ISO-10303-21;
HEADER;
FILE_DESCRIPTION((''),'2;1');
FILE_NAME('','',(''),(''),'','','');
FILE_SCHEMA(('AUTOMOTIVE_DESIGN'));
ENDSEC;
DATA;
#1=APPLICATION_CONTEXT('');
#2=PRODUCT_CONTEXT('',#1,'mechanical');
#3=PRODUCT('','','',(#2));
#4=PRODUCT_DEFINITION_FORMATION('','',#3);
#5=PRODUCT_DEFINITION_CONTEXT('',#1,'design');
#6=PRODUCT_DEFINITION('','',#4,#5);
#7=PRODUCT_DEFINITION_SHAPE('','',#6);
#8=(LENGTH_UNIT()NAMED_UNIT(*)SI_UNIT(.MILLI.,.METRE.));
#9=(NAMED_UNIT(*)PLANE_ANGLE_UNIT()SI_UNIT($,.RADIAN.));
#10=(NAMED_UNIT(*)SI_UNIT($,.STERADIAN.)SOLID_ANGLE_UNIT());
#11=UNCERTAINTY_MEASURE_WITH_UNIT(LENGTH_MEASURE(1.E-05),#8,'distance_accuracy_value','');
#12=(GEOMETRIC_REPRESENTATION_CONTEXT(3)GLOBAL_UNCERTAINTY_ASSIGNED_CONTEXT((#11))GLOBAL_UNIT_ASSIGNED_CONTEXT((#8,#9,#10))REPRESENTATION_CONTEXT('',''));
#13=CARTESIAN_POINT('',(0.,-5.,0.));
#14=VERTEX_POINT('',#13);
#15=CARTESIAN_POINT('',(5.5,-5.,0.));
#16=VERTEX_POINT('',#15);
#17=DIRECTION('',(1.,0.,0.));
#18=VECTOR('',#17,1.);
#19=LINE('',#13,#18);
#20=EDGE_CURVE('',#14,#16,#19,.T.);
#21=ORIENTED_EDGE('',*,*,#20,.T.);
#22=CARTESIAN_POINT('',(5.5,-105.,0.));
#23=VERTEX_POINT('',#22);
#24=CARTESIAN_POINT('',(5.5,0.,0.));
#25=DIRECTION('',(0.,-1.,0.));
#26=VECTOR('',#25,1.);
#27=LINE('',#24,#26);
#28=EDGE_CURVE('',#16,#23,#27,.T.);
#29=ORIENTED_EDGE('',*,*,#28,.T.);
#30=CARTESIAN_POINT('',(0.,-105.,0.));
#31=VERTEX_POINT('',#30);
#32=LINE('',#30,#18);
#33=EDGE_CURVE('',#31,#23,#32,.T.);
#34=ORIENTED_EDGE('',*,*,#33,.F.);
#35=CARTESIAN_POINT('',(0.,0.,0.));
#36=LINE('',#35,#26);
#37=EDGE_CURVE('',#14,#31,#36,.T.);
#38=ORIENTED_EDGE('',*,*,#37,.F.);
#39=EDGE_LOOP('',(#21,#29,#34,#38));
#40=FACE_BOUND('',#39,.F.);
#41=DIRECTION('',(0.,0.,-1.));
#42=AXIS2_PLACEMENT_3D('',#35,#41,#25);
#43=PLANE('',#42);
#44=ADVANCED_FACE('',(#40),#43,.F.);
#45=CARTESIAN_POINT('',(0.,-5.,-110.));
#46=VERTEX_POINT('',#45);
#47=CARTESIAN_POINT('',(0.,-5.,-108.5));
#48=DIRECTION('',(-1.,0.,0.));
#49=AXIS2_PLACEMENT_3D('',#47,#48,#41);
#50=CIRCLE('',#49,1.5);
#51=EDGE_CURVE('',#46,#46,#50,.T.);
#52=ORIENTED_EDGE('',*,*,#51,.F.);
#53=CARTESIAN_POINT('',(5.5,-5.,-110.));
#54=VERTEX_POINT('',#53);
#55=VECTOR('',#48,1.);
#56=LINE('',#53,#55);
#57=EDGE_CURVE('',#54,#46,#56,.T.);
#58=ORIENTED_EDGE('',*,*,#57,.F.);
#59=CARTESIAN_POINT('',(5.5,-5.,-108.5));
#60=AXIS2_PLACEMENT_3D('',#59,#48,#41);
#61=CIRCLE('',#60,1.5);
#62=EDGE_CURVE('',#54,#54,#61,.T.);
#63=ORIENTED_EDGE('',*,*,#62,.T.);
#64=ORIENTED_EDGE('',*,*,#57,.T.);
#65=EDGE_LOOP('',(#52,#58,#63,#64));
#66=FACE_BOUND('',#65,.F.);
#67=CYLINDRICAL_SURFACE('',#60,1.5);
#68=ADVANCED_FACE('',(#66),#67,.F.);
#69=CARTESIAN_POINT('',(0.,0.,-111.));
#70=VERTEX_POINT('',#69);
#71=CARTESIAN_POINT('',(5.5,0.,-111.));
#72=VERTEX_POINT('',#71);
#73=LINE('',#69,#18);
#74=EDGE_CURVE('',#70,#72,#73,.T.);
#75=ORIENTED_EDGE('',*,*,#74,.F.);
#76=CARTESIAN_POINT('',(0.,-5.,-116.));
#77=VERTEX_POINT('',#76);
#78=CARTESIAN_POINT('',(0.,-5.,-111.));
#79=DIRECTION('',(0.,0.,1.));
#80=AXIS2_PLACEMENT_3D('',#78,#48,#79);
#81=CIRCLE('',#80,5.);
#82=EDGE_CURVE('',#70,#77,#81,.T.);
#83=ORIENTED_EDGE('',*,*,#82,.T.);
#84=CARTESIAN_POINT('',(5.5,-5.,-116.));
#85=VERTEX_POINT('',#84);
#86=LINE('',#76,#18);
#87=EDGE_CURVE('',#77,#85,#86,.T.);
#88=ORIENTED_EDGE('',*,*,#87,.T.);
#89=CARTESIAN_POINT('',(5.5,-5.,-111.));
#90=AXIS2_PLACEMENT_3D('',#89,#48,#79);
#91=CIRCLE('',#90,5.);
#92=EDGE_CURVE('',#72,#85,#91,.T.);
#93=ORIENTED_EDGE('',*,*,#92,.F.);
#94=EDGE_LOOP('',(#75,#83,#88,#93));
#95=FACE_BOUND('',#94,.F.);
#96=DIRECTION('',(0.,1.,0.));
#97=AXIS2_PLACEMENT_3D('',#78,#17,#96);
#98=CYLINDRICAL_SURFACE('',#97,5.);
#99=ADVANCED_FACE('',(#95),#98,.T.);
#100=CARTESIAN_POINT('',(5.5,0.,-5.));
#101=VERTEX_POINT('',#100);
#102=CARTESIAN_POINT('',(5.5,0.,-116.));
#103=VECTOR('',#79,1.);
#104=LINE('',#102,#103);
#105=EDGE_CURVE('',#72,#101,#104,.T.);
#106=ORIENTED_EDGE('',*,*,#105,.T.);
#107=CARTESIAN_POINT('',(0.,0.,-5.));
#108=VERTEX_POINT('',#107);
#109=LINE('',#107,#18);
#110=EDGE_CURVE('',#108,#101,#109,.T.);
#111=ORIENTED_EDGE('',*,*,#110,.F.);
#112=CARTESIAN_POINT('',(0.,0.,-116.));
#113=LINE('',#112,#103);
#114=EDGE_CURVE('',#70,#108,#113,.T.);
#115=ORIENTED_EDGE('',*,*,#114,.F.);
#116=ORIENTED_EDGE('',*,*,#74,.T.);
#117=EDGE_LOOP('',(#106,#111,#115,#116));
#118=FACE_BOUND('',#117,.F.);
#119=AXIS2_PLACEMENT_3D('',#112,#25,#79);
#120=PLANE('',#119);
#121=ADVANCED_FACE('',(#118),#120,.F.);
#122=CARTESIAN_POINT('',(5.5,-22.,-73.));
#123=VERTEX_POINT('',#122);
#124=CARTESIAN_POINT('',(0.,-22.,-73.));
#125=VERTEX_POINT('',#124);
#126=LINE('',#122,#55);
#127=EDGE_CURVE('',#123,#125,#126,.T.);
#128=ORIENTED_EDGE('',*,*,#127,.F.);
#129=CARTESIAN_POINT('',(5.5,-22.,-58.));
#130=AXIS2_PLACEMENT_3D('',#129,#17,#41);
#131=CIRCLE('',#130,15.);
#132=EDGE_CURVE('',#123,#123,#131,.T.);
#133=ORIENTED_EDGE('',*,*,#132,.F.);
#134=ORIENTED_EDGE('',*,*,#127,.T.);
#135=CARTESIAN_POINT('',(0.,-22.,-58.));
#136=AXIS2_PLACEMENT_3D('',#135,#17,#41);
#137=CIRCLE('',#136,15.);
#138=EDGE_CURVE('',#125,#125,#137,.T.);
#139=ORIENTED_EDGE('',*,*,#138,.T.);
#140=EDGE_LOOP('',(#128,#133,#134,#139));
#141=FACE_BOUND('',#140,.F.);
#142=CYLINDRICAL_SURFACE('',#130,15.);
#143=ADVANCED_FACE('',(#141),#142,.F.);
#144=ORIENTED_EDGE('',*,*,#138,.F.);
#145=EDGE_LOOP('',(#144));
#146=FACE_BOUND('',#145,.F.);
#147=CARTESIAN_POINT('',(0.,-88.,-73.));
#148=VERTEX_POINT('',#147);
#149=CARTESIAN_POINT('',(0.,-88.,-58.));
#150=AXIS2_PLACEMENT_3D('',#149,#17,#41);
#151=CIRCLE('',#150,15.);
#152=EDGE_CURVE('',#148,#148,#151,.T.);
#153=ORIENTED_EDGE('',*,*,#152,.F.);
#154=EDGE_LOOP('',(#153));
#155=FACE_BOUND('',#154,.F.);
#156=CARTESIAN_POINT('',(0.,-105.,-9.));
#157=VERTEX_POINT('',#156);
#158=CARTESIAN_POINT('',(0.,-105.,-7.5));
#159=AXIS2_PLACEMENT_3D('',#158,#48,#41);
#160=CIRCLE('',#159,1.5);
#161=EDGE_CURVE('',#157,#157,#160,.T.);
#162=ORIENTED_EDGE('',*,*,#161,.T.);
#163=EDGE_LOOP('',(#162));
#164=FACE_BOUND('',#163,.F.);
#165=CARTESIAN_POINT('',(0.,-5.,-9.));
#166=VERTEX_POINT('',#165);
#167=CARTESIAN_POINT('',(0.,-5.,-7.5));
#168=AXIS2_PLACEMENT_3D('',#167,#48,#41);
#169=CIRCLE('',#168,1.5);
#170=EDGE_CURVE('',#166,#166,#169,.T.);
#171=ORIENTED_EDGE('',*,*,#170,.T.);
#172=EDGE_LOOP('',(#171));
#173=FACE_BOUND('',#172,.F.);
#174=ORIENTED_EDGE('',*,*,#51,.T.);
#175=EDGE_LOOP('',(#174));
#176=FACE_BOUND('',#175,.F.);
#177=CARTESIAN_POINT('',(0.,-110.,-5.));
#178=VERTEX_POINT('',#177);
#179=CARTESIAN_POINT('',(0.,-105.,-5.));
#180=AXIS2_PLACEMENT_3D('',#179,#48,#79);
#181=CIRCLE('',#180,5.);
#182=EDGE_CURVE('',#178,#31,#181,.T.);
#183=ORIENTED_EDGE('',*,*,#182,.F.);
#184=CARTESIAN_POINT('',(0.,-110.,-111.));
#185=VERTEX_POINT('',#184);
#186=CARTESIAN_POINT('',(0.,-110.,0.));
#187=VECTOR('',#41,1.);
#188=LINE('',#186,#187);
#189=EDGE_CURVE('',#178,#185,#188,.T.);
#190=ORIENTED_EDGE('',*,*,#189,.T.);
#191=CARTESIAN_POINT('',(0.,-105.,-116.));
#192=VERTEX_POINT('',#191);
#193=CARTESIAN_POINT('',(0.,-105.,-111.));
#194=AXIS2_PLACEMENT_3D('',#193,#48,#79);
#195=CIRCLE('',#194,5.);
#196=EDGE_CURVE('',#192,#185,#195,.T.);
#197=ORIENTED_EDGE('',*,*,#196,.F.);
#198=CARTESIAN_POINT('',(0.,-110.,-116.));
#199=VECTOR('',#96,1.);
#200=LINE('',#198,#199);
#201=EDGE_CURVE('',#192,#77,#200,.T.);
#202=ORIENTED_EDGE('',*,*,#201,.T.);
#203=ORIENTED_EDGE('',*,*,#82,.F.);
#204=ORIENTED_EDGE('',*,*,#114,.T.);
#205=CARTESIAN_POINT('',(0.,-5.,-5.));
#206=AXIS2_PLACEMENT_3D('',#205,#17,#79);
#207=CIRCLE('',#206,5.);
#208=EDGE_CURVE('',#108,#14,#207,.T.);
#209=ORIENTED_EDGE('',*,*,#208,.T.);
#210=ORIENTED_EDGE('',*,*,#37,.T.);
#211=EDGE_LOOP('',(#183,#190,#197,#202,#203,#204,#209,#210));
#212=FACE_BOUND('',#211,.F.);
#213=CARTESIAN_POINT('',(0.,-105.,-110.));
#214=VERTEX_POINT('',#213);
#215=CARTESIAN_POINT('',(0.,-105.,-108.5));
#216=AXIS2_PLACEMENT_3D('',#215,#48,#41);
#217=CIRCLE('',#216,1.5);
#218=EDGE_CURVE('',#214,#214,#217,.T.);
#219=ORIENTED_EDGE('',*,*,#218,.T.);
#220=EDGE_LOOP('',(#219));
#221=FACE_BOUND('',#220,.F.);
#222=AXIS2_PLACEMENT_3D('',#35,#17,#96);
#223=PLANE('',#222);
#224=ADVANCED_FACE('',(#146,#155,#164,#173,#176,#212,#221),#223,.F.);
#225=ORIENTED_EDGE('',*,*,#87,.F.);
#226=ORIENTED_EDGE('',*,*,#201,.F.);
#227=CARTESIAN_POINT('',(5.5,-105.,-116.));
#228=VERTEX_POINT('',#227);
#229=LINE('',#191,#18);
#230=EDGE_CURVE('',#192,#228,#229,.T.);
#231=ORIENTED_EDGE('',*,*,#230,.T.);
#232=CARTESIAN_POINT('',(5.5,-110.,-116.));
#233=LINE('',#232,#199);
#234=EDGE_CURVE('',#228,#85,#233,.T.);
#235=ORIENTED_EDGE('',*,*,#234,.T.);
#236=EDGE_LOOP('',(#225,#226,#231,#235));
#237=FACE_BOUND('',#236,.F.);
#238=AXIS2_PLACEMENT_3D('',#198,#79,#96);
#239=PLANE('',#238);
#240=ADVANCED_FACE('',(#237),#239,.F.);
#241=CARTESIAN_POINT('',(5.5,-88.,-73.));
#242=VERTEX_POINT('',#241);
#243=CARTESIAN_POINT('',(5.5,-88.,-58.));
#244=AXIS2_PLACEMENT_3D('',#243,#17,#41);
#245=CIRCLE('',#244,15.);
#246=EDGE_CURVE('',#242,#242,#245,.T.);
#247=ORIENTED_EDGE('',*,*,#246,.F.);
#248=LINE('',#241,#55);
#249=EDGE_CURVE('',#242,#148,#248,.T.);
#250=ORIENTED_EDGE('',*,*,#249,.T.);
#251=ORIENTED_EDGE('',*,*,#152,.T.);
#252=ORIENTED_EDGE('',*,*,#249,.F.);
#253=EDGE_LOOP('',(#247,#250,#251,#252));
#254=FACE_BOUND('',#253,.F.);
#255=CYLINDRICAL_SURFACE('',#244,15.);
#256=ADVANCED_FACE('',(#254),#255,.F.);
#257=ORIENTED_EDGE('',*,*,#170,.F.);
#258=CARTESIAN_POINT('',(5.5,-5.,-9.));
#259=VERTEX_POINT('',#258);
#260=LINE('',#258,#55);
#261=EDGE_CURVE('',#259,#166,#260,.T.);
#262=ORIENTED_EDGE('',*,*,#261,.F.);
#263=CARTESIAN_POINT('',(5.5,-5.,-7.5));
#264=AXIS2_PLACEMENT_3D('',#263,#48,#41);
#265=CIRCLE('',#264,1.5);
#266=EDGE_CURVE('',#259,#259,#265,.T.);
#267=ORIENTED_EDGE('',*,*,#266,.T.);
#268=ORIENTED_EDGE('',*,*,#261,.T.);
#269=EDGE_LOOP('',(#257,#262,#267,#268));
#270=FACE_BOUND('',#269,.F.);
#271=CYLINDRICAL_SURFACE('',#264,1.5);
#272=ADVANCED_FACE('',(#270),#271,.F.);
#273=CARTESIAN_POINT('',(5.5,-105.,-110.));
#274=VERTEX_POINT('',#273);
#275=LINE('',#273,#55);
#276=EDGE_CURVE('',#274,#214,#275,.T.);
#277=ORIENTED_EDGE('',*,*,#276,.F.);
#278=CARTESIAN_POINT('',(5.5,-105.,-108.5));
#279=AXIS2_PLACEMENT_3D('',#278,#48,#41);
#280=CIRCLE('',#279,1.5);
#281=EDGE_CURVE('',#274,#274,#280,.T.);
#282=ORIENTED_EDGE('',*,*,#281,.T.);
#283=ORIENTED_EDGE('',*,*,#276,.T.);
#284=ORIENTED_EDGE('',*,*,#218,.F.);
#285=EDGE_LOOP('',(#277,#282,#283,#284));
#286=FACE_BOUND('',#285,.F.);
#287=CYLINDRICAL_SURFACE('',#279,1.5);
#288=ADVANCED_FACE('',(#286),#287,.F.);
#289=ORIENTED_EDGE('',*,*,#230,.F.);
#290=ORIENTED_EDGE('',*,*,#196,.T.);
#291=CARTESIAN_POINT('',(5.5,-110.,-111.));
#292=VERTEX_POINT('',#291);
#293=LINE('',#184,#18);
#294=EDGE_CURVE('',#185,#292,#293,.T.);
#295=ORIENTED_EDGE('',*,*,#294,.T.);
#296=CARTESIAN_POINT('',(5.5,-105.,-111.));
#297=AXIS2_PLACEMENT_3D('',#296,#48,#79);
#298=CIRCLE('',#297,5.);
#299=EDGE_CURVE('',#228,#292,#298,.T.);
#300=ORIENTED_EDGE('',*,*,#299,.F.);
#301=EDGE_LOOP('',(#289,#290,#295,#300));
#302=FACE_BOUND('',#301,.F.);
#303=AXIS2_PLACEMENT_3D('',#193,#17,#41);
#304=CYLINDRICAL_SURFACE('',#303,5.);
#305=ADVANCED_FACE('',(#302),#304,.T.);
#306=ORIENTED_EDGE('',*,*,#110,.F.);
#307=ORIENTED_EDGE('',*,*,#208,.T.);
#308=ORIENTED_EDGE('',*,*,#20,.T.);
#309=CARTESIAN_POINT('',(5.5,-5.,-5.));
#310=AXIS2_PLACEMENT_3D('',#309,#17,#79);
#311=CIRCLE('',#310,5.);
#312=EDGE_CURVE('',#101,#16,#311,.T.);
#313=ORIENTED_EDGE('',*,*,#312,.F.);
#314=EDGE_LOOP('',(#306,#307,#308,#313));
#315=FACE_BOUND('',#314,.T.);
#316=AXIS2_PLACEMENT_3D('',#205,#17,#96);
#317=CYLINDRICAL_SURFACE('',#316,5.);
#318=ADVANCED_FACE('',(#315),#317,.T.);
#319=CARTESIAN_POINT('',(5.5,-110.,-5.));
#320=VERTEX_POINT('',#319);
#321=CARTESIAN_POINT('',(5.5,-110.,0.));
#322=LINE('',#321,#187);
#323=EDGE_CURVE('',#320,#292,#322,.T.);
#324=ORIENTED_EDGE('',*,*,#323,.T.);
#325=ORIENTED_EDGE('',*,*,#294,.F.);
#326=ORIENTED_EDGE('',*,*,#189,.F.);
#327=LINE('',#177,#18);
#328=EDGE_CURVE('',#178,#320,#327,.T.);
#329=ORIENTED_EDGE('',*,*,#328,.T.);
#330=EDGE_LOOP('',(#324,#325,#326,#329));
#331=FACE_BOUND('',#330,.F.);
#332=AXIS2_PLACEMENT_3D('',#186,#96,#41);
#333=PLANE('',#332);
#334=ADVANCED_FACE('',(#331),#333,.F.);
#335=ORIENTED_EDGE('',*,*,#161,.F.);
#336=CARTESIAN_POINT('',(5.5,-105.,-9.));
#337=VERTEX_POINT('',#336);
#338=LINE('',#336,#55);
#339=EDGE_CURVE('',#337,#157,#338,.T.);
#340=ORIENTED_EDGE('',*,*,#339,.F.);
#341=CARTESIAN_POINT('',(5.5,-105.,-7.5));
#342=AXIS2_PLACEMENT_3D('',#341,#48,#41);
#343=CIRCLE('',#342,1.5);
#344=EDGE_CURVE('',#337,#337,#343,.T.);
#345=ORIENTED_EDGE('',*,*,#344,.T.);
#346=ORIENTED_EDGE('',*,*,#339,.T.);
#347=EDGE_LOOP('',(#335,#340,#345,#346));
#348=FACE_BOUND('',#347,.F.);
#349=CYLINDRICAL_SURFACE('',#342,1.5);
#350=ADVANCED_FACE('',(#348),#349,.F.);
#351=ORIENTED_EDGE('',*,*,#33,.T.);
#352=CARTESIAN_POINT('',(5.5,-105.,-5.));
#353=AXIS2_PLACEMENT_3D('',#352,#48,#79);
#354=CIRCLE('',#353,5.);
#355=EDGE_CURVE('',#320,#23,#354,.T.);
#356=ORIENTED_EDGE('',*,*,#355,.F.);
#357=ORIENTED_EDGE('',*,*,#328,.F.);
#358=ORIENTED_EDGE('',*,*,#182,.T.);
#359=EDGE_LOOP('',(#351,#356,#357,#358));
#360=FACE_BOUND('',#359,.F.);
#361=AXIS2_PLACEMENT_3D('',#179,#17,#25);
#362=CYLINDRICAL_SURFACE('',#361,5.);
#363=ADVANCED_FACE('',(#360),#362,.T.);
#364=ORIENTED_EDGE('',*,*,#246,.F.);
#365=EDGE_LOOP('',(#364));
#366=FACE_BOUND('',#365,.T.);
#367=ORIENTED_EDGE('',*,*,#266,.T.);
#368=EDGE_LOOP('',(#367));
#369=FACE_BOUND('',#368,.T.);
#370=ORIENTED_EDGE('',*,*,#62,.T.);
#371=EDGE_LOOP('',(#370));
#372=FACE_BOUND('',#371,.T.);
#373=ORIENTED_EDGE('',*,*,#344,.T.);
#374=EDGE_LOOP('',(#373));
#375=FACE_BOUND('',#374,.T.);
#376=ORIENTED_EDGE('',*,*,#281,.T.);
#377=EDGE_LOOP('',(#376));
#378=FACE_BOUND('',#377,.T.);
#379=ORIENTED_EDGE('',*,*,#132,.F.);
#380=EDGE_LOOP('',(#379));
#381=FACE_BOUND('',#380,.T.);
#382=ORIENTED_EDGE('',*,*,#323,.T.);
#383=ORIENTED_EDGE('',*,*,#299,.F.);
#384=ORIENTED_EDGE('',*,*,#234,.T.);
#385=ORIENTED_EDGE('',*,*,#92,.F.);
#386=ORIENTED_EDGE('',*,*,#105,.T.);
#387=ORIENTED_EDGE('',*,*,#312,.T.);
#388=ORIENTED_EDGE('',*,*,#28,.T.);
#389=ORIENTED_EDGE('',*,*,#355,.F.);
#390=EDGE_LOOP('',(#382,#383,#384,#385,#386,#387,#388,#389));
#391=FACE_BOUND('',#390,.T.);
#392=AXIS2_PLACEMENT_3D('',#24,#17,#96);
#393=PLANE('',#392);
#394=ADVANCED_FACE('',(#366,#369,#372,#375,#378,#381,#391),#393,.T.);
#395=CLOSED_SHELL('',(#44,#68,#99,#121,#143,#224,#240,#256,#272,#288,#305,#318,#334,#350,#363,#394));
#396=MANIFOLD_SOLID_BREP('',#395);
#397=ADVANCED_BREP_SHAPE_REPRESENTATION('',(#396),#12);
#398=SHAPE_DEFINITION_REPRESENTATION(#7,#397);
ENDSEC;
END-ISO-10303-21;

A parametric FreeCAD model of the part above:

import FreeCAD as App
import Part
import Sketcher


def edges_at(feature, points):
    """Names of the edges that pass closest to the given points."""
    edges = feature.Shape.Edges
    near = lambda p: min(range(len(edges)), key=lambda i: edges[i].distToShape(Part.Vertex(*p))[0])
    return sorted({f"Edge{near(p) + 1}" for p in points})


def add_polygon(sketch, points):
    """Adds a closed chain of lines whose ends are joined by coincident constraints."""
    first, n = sketch.GeometryCount, len(points)
    for a, b in zip(points, points[1:] + points[:1]):
        sketch.addGeometry(Part.LineSegment(App.Vector(*a, 0), App.Vector(*b, 0)), False)
    for i in range(n):
        sketch.addConstraint(Sketcher.Constraint("Coincident", first + i, 2, first + (i + 1) % n, 1))

doc = App.newDocument("Part")
body = doc.addObject("PartDesign::Body", "Body")

# Sketch on YZ plane
sketch1 = body.newObject("Sketcher::SketchObject", "Sketch")
sketch1.AttachmentSupport = (doc.getObject("YZ_Plane"), [""])
sketch1.MapMode = "FlatFace"
add_polygon(sketch1, [(0, -116), (0, 0), (-110, 0), (-110, -116)])  # lines 0-3
sketch1.addConstraint([
    Sketcher.Constraint("Vertical", 0),
    Sketcher.Constraint("Horizontal", 1),
    Sketcher.Constraint("Vertical", 2),
    Sketcher.Constraint("Horizontal", 3),
    Sketcher.Constraint("Coincident", 0, 2, -1, 1),
    Sketcher.Constraint("DistanceX", 1, 2, 1, 1, 110.0),
    Sketcher.Constraint("DistanceY", 0, 1, 0, 2, 116.0),
])
pad1 = body.newObject("PartDesign::Pad", "Pad")
pad1.Profile = sketch1
pad1.Length = 5.5
doc.recompute()

fillet = body.newObject("PartDesign::Fillet", "Fillet")
fillet.Base = (pad1, edges_at(pad1, [
    (2.75, 0, 0),
    (2.75, 0, -116),
    (2.75, -110, 0),
    (2.75, -110, -116),
]))
fillet.Radius = 5

# Sketch on YZ plane
sketch2 = body.newObject("Sketcher::SketchObject", "Sketch001")
sketch2.AttachmentSupport = (doc.getObject("YZ_Plane"), [""])
sketch2.MapMode = "FlatFace"
sketch2.AttachmentOffset = App.Placement(App.Vector(0, 0, 5.5), App.Rotation())
sketch2.addGeometry([
    Part.Circle(App.Vector(-5, -7.5, 0), App.Vector(0, 0, 1), 1.5),
    Part.Circle(App.Vector(-5, -108.5, 0), App.Vector(0, 0, 1), 1.5),
    Part.Circle(App.Vector(-105, -108.5, 0), App.Vector(0, 0, 1), 1.5),
    Part.Circle(App.Vector(-105, -7.5, 0), App.Vector(0, 0, 1), 1.5),
], False)
sketch2.addConstraint([
    Sketcher.Constraint("Equal", 0, 1),
    Sketcher.Constraint("Equal", 1, 2),
    Sketcher.Constraint("Equal", 2, 3),
    Sketcher.Constraint("Horizontal", 1, 3, 2, 3),
    Sketcher.Constraint("Horizontal", 0, 3, 3, 3),
    Sketcher.Constraint("Vertical", 0, 3, 1, 3),
    Sketcher.Constraint("Vertical", 2, 3, 3, 3),
    Sketcher.Constraint("Diameter", 0, 3.0),
    Sketcher.Constraint("DistanceX", 0, 3, -1, 1, 5.0),
    Sketcher.Constraint("DistanceX", 2, 3, -1, 1, 105.0),
    Sketcher.Constraint("DistanceY", 1, 3, 0, 3, 101.0),
    Sketcher.Constraint("DistanceY", 0, 3, -1, 1, 7.5),
])
doc.recompute()
hole = body.newObject("PartDesign::Hole", "Hole")
hole.Profile = sketch2
hole.ThreadType = "None"
hole.Diameter = 3
hole.DepthType = "ThroughAll"

# Sketch on YZ plane
sketch3 = body.newObject("Sketcher::SketchObject", "Sketch002")
sketch3.AttachmentSupport = (doc.getObject("YZ_Plane"), [""])
sketch3.MapMode = "FlatFace"
sketch3.AttachmentOffset = App.Placement(App.Vector(0, 0, 5.5), App.Rotation())
sketch3.addGeometry(Part.Circle(App.Vector(-88, -58, 0), App.Vector(0, 0, 1), 15), False)
sketch3.addConstraint([
    Sketcher.Constraint("Diameter", 0, 30.0),
    Sketcher.Constraint("DistanceY", 0, 3, -1, 1, 58.0),
    Sketcher.Constraint("DistanceX", 0, 3, -1, 1, 88.0),
])
pocket1 = body.newObject("PartDesign::Pocket", "Pocket")
pocket1.Profile = sketch3
pocket1.Type = "ThroughAll"

# Sketch on YZ plane
sketch4 = body.newObject("Sketcher::SketchObject", "Sketch003")
sketch4.AttachmentSupport = (doc.getObject("YZ_Plane"), [""])
sketch4.MapMode = "FlatFace"
sketch4.AttachmentOffset = App.Placement(App.Vector(0, 0, 5.5), App.Rotation())
sketch4.addGeometry(Part.Circle(App.Vector(-22, -58, 0), App.Vector(0, 0, 1), 15), False)
sketch4.addConstraint([
    Sketcher.Constraint("Diameter", 0, 30.0),
    Sketcher.Constraint("DistanceX", 0, 3, -1, 1, 22.0),
    Sketcher.Constraint("DistanceY", 0, 3, -1, 1, 58.0),
])
pocket2 = body.newObject("PartDesign::Pocket", "Pocket001")
pocket2.Profile = sketch4
pocket2.Type = "ThroughAll"

doc.recompute()
